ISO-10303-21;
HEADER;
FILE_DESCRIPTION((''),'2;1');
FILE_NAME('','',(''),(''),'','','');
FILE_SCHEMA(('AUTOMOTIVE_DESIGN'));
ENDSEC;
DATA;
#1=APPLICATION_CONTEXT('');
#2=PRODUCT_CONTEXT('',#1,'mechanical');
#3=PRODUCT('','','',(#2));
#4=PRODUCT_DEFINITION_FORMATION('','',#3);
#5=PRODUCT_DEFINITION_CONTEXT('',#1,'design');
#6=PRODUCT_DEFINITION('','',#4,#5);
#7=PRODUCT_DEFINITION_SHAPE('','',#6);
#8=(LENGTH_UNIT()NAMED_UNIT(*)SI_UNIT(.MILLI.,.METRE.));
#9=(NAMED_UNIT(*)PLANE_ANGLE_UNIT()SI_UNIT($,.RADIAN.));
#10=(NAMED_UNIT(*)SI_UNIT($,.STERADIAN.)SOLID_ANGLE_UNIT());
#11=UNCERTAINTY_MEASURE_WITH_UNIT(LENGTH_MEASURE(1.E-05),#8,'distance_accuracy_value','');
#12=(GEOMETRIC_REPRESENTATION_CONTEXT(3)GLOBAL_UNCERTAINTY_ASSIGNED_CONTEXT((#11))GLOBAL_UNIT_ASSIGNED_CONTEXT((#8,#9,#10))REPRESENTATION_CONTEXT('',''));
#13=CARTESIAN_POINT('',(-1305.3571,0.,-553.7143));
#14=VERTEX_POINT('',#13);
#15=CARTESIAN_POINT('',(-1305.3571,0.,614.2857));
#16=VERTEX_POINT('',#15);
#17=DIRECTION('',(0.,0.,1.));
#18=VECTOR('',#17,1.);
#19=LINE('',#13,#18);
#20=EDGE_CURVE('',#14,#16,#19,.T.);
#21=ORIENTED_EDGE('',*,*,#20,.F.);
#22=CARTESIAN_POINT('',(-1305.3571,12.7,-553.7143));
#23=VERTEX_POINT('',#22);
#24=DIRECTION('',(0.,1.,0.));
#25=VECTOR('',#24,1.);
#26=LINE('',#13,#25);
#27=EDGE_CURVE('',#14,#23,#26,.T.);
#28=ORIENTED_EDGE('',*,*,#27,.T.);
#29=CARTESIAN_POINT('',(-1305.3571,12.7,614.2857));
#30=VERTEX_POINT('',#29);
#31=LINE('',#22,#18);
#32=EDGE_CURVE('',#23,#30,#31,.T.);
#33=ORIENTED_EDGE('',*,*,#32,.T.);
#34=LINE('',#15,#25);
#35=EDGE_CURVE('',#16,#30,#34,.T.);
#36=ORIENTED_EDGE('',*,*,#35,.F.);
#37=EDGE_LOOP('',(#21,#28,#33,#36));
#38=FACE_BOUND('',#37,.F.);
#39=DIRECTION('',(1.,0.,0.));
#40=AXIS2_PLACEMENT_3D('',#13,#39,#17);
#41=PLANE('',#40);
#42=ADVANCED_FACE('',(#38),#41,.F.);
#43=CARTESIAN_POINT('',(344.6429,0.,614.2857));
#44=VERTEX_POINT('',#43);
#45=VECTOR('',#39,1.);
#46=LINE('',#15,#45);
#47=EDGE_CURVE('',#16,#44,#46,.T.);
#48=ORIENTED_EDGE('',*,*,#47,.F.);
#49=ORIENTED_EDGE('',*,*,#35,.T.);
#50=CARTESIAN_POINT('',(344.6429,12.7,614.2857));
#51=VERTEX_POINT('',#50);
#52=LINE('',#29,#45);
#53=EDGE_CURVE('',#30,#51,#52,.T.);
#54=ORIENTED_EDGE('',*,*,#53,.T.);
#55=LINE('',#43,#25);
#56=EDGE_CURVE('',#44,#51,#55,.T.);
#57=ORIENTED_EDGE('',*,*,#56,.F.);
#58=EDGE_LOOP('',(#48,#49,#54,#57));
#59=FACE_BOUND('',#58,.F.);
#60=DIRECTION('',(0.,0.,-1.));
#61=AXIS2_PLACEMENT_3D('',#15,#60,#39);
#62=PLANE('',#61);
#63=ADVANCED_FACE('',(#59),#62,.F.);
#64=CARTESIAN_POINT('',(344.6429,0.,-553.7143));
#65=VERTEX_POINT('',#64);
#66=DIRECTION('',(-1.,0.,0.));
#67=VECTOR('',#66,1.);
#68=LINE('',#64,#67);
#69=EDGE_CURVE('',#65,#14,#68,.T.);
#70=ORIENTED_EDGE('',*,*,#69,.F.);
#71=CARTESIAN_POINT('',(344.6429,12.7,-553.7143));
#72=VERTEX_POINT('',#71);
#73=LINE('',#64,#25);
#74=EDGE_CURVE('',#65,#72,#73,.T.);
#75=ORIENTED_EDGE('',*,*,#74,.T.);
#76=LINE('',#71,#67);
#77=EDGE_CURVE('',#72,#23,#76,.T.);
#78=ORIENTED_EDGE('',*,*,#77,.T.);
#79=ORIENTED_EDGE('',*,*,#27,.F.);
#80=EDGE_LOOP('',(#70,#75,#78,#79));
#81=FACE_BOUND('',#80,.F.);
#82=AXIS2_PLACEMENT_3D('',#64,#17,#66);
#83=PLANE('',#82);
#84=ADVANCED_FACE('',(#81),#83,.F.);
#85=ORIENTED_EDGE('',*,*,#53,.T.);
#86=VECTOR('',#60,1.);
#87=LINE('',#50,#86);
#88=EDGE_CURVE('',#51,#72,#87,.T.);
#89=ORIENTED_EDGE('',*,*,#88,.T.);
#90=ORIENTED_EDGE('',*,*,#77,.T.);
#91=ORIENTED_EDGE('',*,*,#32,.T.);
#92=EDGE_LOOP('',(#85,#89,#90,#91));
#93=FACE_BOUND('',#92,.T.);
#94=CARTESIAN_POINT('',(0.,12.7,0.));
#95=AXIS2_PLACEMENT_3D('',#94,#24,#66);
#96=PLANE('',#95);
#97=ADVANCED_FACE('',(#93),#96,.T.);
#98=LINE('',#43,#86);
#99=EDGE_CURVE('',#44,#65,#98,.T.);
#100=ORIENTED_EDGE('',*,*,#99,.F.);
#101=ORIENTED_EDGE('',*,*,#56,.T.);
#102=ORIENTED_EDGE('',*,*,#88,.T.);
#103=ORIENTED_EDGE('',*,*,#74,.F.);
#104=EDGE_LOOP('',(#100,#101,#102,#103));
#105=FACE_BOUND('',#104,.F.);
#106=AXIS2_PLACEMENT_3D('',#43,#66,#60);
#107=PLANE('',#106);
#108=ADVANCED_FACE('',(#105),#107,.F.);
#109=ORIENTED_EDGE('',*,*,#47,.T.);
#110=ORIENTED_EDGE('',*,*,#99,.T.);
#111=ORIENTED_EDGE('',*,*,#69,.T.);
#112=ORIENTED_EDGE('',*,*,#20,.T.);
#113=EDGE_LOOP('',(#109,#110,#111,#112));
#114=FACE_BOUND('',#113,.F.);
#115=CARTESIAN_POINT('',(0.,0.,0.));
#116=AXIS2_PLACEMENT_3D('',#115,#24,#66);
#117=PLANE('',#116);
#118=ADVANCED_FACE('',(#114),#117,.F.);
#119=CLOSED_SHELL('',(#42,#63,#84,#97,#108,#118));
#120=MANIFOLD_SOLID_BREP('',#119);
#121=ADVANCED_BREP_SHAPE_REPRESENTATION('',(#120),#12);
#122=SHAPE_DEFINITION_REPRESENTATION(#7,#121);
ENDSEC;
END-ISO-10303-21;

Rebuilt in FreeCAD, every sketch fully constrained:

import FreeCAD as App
import Part
import Sketcher
from FreeCAD import Vector


def add_polygon(sketch, points):
    """Adds a closed chain of lines whose ends are joined by coincident constraints."""
    first, n = sketch.GeometryCount, len(points)
    for a, b in zip(points, points[1:] + points[:1]):
        sketch.addGeometry(Part.LineSegment(App.Vector(*a, 0), App.Vector(*b, 0)), False)
    for i in range(n):
        sketch.addConstraint(Sketcher.Constraint("Coincident", first + i, 2, first + (i + 1) % n, 1))

doc = App.newDocument("Part")
body = doc.addObject("PartDesign::Body", "Body")

sketch1 = body.newObject("Sketcher::SketchObject", "Sketch")
sketch1.AttachmentSupport = (doc.getObject("XZ_Plane"), [""])
sketch1.MapMode = "FlatFace"
add_polygon(sketch1, [(-1305, -554), (-1305, 614), (345, 614), (345, -554)])
sketch1.addConstraint([
    Sketcher.Constraint("Vertical", 0),
    Sketcher.Constraint("Horizontal", 1),
    Sketcher.Constraint("Vertical", 2),
    Sketcher.Constraint("Horizontal", 3),
    Sketcher.Constraint("DistanceX", 1, 1, 1, 2, 1650.0),
    Sketcher.Constraint("DistanceY", 0, 1, 0, 2, 1168.0),
    Sketcher.Constraint("DistanceX", 0, 2, -1, 1, 1305.357),
    Sketcher.Constraint("DistanceY", -1, 1, 0, 2, 614.2857),
])
pad1 = body.newObject("PartDesign::Pad", "Pad")
pad1.Profile = sketch1
pad1.Length = 12.7
pad1.Reversed = True

doc.recompute()
